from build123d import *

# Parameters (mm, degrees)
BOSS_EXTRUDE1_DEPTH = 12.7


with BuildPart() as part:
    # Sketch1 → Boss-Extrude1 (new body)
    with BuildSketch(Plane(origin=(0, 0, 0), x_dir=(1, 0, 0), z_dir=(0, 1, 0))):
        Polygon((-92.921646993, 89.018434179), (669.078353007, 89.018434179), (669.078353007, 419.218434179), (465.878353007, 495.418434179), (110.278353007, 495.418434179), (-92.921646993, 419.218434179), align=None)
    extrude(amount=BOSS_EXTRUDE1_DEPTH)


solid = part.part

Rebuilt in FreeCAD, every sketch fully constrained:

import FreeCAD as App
import Part
import Sketcher
from FreeCAD import Vector
Q = App.Units.Quantity


def add_polygon(sketch, points):
    """Adds a closed chain of lines whose ends are joined by coincident constraints."""
    first, n = sketch.GeometryCount, len(points)
    for a, b in zip(points, points[1:] + points[:1]):
        sketch.addGeometry(Part.LineSegment(App.Vector(*a, 0), App.Vector(*b, 0)), False)
    for i in range(n):
        sketch.addConstraint(Sketcher.Constraint("Coincident", first + i, 2, first + (i + 1) % n, 1))

doc = App.newDocument("Part")
body = doc.addObject("PartDesign::Body", "Body")

# Sketch on XZ plane
sketch1 = body.newObject("Sketcher::SketchObject", "Sketch")
sketch1.AttachmentSupport = (doc.getObject("XZ_Plane"), [""])
sketch1.MapMode = "FlatFace"
add_polygon(sketch1, [(-93, -89), (669, -89), (669, -419), (466, -495), (110, -495), (-93, -419)])  # lines 0-5
sketch1.addConstraint([
    Sketcher.Constraint("Horizontal", 0),
    Sketcher.Constraint("Vertical", 1),
    Sketcher.Constraint("Horizontal", 3),
    Sketcher.Constraint("Vertical", 5),
    Sketcher.Constraint("Horizontal", 1, 2, 4, 2),
    Sketcher.Constraint("Equal", 2, 4),
    Sketcher.Constraint("DistanceX", 0, 1, 0, 2, Q("30 in")),
    Sketcher.Constraint("DistanceX", 3, 2, 3, 1, Q("14 in")),
    Sketcher.Constraint("DistanceY", 1, 2, 1, 1, Q("13 in")),
    Sketcher.Constraint("DistanceY", 2, 2, 1, 2, Q("3 in")),
    Sketcher.Constraint("DistanceX", -1, 1, 0, 2, Q("669.078353 mm")),
    Sketcher.Constraint("DistanceY", 0, 2, -1, 1, Q("89.018434 mm")),
])
pad1 = body.newObject("PartDesign::Pad", "Pad")
pad1.Profile = sketch1
pad1.Length = Q("0.5 in")
pad1.Reversed = True

doc.recompute()
